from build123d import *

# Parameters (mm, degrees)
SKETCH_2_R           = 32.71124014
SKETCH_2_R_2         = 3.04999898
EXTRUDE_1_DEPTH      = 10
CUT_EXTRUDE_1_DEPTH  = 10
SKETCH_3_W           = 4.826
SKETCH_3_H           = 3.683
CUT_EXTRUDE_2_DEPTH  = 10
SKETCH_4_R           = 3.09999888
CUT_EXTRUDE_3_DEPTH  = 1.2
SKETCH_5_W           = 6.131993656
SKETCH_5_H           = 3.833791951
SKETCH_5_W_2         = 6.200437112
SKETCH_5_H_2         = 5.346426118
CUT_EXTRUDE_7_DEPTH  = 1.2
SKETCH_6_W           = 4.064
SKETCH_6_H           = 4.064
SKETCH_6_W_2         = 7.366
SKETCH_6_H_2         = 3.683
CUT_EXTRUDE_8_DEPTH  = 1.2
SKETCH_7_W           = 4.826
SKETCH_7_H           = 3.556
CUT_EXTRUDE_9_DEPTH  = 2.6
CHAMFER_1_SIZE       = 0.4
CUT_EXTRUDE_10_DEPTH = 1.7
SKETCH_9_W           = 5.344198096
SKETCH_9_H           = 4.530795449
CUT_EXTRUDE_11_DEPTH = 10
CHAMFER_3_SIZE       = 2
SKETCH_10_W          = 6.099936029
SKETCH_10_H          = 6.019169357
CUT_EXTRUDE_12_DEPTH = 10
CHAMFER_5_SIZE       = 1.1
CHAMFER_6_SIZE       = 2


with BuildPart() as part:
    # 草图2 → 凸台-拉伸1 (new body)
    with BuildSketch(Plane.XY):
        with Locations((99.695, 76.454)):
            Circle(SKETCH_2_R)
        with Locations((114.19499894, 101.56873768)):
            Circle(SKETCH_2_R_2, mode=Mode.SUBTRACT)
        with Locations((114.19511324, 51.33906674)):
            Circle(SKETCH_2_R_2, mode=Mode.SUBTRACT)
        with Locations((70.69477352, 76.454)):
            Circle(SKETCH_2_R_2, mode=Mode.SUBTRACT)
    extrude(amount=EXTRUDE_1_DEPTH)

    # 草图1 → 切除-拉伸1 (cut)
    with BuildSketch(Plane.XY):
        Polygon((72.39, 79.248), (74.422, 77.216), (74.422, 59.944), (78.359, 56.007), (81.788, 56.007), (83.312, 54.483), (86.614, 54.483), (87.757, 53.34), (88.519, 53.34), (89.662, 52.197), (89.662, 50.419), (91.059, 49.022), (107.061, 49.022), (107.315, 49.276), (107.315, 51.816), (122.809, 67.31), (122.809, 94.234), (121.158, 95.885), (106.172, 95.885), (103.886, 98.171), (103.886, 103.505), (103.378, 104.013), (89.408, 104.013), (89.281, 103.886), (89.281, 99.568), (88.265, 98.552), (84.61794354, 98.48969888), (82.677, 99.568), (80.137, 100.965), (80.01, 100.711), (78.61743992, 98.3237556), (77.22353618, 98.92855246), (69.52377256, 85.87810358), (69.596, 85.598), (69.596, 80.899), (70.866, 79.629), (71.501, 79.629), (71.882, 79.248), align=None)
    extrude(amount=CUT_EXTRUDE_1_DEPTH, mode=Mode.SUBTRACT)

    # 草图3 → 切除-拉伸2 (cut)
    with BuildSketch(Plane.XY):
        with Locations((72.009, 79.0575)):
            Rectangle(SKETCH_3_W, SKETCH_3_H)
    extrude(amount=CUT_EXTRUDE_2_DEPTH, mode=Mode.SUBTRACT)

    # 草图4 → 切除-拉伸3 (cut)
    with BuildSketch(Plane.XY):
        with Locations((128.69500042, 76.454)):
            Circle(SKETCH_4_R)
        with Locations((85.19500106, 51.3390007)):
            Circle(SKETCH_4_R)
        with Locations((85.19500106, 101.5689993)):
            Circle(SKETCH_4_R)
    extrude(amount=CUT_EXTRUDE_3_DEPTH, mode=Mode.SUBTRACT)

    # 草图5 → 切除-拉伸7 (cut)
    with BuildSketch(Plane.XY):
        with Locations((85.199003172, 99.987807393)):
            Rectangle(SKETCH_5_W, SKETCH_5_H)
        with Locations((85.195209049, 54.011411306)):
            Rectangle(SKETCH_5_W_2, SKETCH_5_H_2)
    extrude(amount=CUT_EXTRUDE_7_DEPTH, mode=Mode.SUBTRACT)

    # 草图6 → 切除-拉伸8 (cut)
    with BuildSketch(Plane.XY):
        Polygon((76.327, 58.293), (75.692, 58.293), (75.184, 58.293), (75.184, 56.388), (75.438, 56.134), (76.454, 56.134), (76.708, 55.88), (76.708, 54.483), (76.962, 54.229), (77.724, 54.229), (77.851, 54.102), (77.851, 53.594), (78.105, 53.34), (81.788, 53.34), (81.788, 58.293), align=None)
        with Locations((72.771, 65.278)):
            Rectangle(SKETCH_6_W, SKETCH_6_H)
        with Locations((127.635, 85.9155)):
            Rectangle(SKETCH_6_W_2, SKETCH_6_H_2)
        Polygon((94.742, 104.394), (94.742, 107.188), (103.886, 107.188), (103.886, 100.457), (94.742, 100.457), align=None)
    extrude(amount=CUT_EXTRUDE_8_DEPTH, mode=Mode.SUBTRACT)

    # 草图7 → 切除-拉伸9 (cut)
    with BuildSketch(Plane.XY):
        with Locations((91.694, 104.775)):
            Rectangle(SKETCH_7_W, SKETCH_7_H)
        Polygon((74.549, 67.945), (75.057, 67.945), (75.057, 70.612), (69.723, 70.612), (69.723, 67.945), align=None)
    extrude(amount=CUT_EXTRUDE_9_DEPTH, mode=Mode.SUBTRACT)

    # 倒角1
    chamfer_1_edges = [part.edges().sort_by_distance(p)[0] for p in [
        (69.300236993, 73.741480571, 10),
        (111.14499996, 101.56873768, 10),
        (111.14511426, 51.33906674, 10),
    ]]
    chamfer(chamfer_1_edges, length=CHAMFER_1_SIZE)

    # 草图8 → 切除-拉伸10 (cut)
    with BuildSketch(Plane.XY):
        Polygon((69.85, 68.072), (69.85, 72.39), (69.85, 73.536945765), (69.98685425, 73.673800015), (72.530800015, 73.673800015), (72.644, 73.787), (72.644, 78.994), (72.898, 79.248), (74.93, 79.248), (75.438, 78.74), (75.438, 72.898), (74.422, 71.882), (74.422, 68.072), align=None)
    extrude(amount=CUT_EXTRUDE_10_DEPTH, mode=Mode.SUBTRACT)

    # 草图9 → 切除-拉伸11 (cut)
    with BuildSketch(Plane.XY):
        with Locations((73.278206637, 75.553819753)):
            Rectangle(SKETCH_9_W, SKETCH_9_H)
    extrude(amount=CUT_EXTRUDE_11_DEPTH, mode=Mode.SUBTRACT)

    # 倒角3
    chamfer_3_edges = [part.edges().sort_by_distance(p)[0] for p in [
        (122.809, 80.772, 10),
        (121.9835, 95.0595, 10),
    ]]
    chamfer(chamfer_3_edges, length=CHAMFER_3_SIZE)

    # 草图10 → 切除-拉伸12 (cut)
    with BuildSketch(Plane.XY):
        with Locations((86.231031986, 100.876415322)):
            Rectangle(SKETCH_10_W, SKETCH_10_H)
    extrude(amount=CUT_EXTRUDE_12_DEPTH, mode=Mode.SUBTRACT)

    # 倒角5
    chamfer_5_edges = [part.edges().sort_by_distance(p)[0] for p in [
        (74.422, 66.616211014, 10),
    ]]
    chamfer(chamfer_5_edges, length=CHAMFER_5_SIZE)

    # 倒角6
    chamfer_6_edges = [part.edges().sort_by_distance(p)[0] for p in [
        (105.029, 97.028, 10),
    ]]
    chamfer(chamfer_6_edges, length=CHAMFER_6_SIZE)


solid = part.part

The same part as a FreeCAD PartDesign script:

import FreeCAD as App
import Part
import Sketcher
from FreeCAD import Vector
Q = App.Units.Quantity


def edges_at(feature, points):
    """Names of the edges that pass closest to the given points."""
    edges = feature.Shape.Edges
    near = lambda p: min(range(len(edges)), key=lambda i: edges[i].distToShape(Part.Vertex(*p))[0])
    return sorted({f"Edge{near(p) + 1}" for p in points})

doc = App.newDocument("Part")
body = doc.addObject("PartDesign::Body", "Body")

# Sketch on XY plane
sketch1 = doc.addObject("Sketcher::SketchObject", "Sketch")
body.addObject(sketch1)
sketch1.AttachmentSupport = (doc.XY_Plane, [""])
sketch1.MapMode = "FlatFace"
sketch1.addGeometry([
    Part.Circle(Vector(99.7, 76.5, 0), Vector(0, 0, 1), 32.7),
    Part.Circle(Vector(114.2, 51.3, 0), Vector(0, 0, 1), 3),
    Part.Circle(Vector(70.7, 76.5, 0), Vector(0, 0, 1), 3),
    Part.Circle(Vector(114.2, 101.6, 0), Vector(0, 0, 1), 3),
], False)
sketch1.addConstraint([
    Sketcher.Constraint("Equal", 1, 2),
    Sketcher.Constraint("Equal", 2, 3),
    Sketcher.Constraint("Horizontal", 0, 3, 2, 3),
    Sketcher.Constraint("DistanceY", -1, 1, 0, 3, Q("3.01 in")),
    Sketcher.Constraint("Diameter", 0, 65.42248),
    Sketcher.Constraint("DistanceX", -1, 1, 0, 3, Q("3.925 in")),
    Sketcher.Constraint("Diameter", 1, 6.099998),
    Sketcher.Constraint("DistanceX", -1, 1, 3, 3, 114.194999),
    Sketcher.Constraint("DistanceX", 2, 3, 1, 3, 43.50034),
    Sketcher.Constraint("DistanceY", 1, 3, 3, 3, 50.229671),
    Sketcher.Constraint("DistanceX", -1, 1, 1, 3, 114.195113),
    Sketcher.Constraint("DistanceY", -1, 1, 1, 3, 51.339067),
])
pad1 = doc.addObject("PartDesign::Pad", "Pad")
body.addObject(pad1)
pad1.Profile = sketch1
pad1.Length = 10

# Sketch on XY plane
sketch2 = doc.addObject("Sketcher::SketchObject", "Sketch001")
body.addObject(sketch2)
sketch2.AttachmentSupport = (doc.XY_Plane, [""])
sketch2.MapMode = "FlatFace"
sketch2.addGeometry([
    Part.LineSegment(Vector(72.39, 79.25, 0), Vector(74.42, 77.22, 0)),  # 0
    Part.LineSegment(Vector(74.42, 77.22, 0), Vector(74.42, 59.94, 0)),  # 1
    Part.LineSegment(Vector(74.42, 59.94, 0), Vector(78.36, 56.01, 0)),  # 2
    Part.LineSegment(Vector(78.36, 56.01, 0), Vector(81.79, 56.01, 0)),  # 3
    Part.LineSegment(Vector(81.79, 56.01, 0), Vector(83.31, 54.48, 0)),  # 4
    Part.LineSegment(Vector(83.31, 54.48, 0), Vector(86.61, 54.48, 0)),  # 5
    Part.LineSegment(Vector(86.61, 54.48, 0), Vector(87.76, 53.34, 0)),  # 6
    Part.LineSegment(Vector(87.76, 53.34, 0), Vector(88.52, 53.34, 0)),  # 7
    Part.LineSegment(Vector(88.52, 53.34, 0), Vector(89.66, 52.2, 0)),  # 8
    Part.LineSegment(Vector(89.66, 52.2, 0), Vector(89.66, 50.42, 0)),  # 9
    Part.LineSegment(Vector(89.66, 50.42, 0), Vector(91.06, 49.02, 0)),  # 10
    Part.LineSegment(Vector(91.06, 49.02, 0), Vector(107.06, 49.02, 0)),  # 11
    Part.LineSegment(Vector(107.06, 49.02, 0), Vector(107.31, 49.28, 0)),  # 12
    Part.LineSegment(Vector(107.31, 49.28, 0), Vector(107.31, 51.82, 0)),  # 13
    Part.LineSegment(Vector(107.31, 51.82, 0), Vector(122.81, 67.31, 0)),  # 14
    Part.LineSegment(Vector(122.81, 67.31, 0), Vector(122.81, 94.23, 0)),  # 15
    Part.LineSegment(Vector(122.81, 94.23, 0), Vector(121.16, 95.89, 0)),  # 16
    Part.LineSegment(Vector(121.16, 95.89, 0), Vector(106.17, 95.89, 0)),  # 17
    Part.LineSegment(Vector(106.17, 95.89, 0), Vector(103.89, 98.17, 0)),  # 18
    Part.LineSegment(Vector(103.89, 98.17, 0), Vector(103.89, 103.5, 0)),  # 19
    Part.LineSegment(Vector(103.89, 103.5, 0), Vector(103.38, 104.01, 0)),  # 20
    Part.LineSegment(Vector(103.38, 104.01, 0), Vector(89.41, 104.01, 0)),  # 21
    Part.LineSegment(Vector(89.41, 104.01, 0), Vector(89.28, 103.89, 0)),  # 22
    Part.LineSegment(Vector(89.28, 103.89, 0), Vector(89.28, 99.57, 0)),  # 23
    Part.LineSegment(Vector(89.28, 99.57, 0), Vector(88.27, 98.55, 0)),  # 24
    Part.LineSegment(Vector(88.27, 98.55, 0), Vector(84.62, 98.49, 0)),  # 25
    Part.LineSegment(Vector(84.62, 98.49, 0), Vector(82.68, 99.57, 0)),  # 26
    Part.LineSegment(Vector(82.68, 99.57, 0), Vector(80.14, 100.97, 0)),  # 27
    Part.LineSegment(Vector(80.14, 100.97, 0), Vector(80.01, 100.71, 0)),  # 28
    Part.LineSegment(Vector(80.01, 100.71, 0), Vector(78.62, 98.32, 0)),  # 29
    Part.LineSegment(Vector(78.62, 98.32, 0), Vector(77.22, 98.93, 0)),  # 30
    Part.LineSegment(Vector(77.22, 98.93, 0), Vector(69.52, 85.88, 0)),  # 31
    Part.LineSegment(Vector(69.52, 85.88, 0), Vector(69.6, 85.6, 0)),  # 32
    Part.LineSegment(Vector(69.6, 85.6, 0), Vector(69.6, 80.9, 0)),  # 33
    Part.LineSegment(Vector(69.6, 80.9, 0), Vector(70.87, 79.63, 0)),  # 34
    Part.LineSegment(Vector(70.87, 79.63, 0), Vector(71.5, 79.63, 0)),  # 35
    Part.LineSegment(Vector(71.5, 79.63, 0), Vector(71.88, 79.25, 0)),  # 36
    Part.LineSegment(Vector(71.88, 79.25, 0), Vector(72.39, 79.25, 0)),  # 37
], False)
sketch2.addConstraint([
    Sketcher.Constraint("Coincident", 0, 2, 1, 1),
    Sketcher.Constraint("Coincident", 1, 2, 2, 1),
    Sketcher.Constraint("Coincident", 2, 2, 3, 1),
    Sketcher.Constraint("Coincident", 3, 2, 4, 1),
    Sketcher.Constraint("Coincident", 4, 2, 5, 1),
    Sketcher.Constraint("Coincident", 5, 2, 6, 1),
    Sketcher.Constraint("Coincident", 6, 2, 7, 1),
    Sketcher.Constraint("Coincident", 7, 2, 8, 1),
    Sketcher.Constraint("Coincident", 8, 2, 9, 1),
    Sketcher.Constraint("Coincident", 9, 2, 10, 1),
    Sketcher.Constraint("Coincident", 10, 2, 11, 1),
    Sketcher.Constraint("Coincident", 11, 2, 12, 1),
    Sketcher.Constraint("Coincident", 12, 2, 13, 1),
    Sketcher.Constraint("Coincident", 13, 2, 14, 1),
    Sketcher.Constraint("Coincident", 14, 2, 15, 1),
    Sketcher.Constraint("Coincident", 15, 2, 16, 1),
    Sketcher.Constraint("Coincident", 16, 2, 17, 1),
    Sketcher.Constraint("Coincident", 17, 2, 18, 1),
    Sketcher.Constraint("Coincident", 18, 2, 19, 1),
    Sketcher.Constraint("Coincident", 19, 2, 20, 1),
    Sketcher.Constraint("Coincident", 20, 2, 21, 1),
    Sketcher.Constraint("Coincident", 21, 2, 22, 1),
    Sketcher.Constraint("Coincident", 22, 2, 23, 1),
    Sketcher.Constraint("Coincident", 23, 2, 24, 1),
    Sketcher.Constraint("Coincident", 24, 2, 25, 1),
    Sketcher.Constraint("Coincident", 25, 2, 26, 1),
    Sketcher.Constraint("Coincident", 26, 2, 27, 1),
    Sketcher.Constraint("Coincident", 27, 2, 28, 1),
    Sketcher.Constraint("Coincident", 28, 2, 29, 1),
    Sketcher.Constraint("Coincident", 29, 2, 30, 1),
    Sketcher.Constraint("Coincident", 30, 2, 31, 1),
    Sketcher.Constraint("Coincident", 31, 2, 32, 1),
    Sketcher.Constraint("Coincident", 32, 2, 33, 1),
    Sketcher.Constraint("Coincident", 33, 2, 34, 1),
    Sketcher.Constraint("Coincident", 34, 2, 35, 1),
    Sketcher.Constraint("Coincident", 35, 2, 36, 1),
    Sketcher.Constraint("Coincident", 36, 2, 37, 1),
    Sketcher.Constraint("Coincident", 37, 2, 0, 1),
    Sketcher.Constraint("Vertical", 1),
    Sketcher.Constraint("Horizontal", 3),
    Sketcher.Constraint("Horizontal", 5),
    Sketcher.Constraint("Horizontal", 7),
    Sketcher.Constraint("Vertical", 9),
    Sketcher.Constraint("Horizontal", 11),
    Sketcher.Constraint("Vertical", 13),
    Sketcher.Constraint("Vertical", 15),
    Sketcher.Constraint("Horizontal", 17),
    Sketcher.Constraint("Vertical", 19),
    Sketcher.Constraint("Horizontal", 21),
    Sketcher.Constraint("Vertical", 23),
    Sketcher.Constraint("Vertical", 33),
    Sketcher.Constraint("Horizontal", 35),
    Sketcher.Constraint("Horizontal", 37),
    Sketcher.Constraint("Parallel", 0, 2),
    Sketcher.Constraint("Parallel", 2, 4),
    Sketcher.Constraint("Parallel", 4, 6),
    Sketcher.Constraint("Parallel", 6, 8),
    Sketcher.Constraint("Parallel", 8, 10),
    Sketcher.Constraint("Perpendicular", 10, 12),
    Sketcher.Constraint("Parallel", 12, 14),
    Sketcher.Constraint("Perpendicular", 14, 16),
    Sketcher.Constraint("Parallel", 16, 18),
    Sketcher.Constraint("Parallel", 18, 20),
    Sketcher.Constraint("Perpendicular", 20, 22),
    Sketcher.Constraint("Parallel", 22, 24),
    Sketcher.Constraint("Perpendicular", 24, 34),
    Sketcher.Constraint("Parallel", 34, 36),
    Sketcher.Constraint("Horizontal", 23, 2, 26, 2),
    Sketcher.Constraint("Equal", 6, 8),
    Sketcher.Constraint("DistanceY", 13, 1, 13, 2, Q("0.1 in")),
    Sketcher.Constraint("Angle", 0, Q("-45 deg")),
    Sketcher.Constraint("DistanceX", 5, 1, 5, 2, Q("0.13 in")),
    Sketcher.Constraint("DistanceX", 7, 1, 7, 2, Q("0.03 in")),
    Sketcher.Constraint("DistanceX", 11, 1, 11, 2, Q("0.63 in")),
    Sketcher.Constraint("DistanceX", 17, 2, 17, 1, Q("0.59 in")),
    Sketcher.Constraint("DistanceX", 21, 2, 21, 1, Q("0.55 in")),
    Sketcher.Constraint("DistanceX", 37, 1, 37, 2, Q("0.02 in")),
    Sketcher.Constraint("DistanceY", 1, 2, 1, 1, Q("0.68 in")),
    Sketcher.Constraint("DistanceY", 9, 2, 9, 1, Q("0.07 in")),
    Sketcher.Constraint("DistanceY", 15, 1, 15, 2, Q("1.06 in")),
    Sketcher.Constraint("DistanceY", 19, 1, 19, 2, Q("0.21 in")),
    Sketcher.Constraint("DistanceY", 23, 2, 23, 1, Q("0.17 in")),
    Sketcher.Constraint("DistanceY", -1, 1, 6, 2, Q("2.1 in")),
    Sketcher.Constraint("DistanceX", 2, 2, 7, 2, Q("0.4 in")),
    Sketcher.Constraint("DistanceX", 7, 2, 10, 2, Q("0.1 in")),
    Sketcher.Constraint("DistanceY", 17, 2, 19, 2, Q("0.3 in")),
    Sketcher.Constraint("DistanceX", 20, 2, 16, 2, Q("0.7 in")),
    Sketcher.Constraint("DistanceX", 27, 2, 26, 2, Q("0.1 in")),
    Sketcher.Constraint("DistanceX", 36, 2, 0, 2, Q("0.1 in")),
    Sketcher.Constraint("DistanceX", 3, 1, 3, 2, Q("0.135 in")),
    Sketcher.Constraint("DistanceX", 35, 1, 35, 2, Q("0.025 in")),
    Sketcher.Constraint("DistanceY", 33, 2, 33, 1, Q("0.185 in")),
    Sketcher.Constraint("DistanceX", -1, 1, 0, 2, Q("2.93 in")),
    Sketcher.Constraint("DistanceY", -1, 1, 0, 2, Q("3.04 in")),
    Sketcher.Constraint("DistanceX", -1, 1, 4, 2, Q("3.28 in")),
    Sketcher.Constraint("DistanceY", -1, 1, 12, 2, Q("1.94 in")),
    Sketcher.Constraint("DistanceY", -1, 1, 14, 2, Q("2.65 in")),
    Sketcher.Constraint("DistanceX", -1, 1, 16, 2, Q("4.77 in")),
    Sketcher.Constraint("DistanceY", -1, 1, 22, 2, Q("4.09 in")),
    Sketcher.Constraint("DistanceY", -1, 1, 24, 2, Q("3.88 in")),
    Sketcher.Constraint("DistanceX", -1, 1, 28, 2, Q("3.15 in")),
    Sketcher.Constraint("DistanceX", -1, 1, 32, 2, Q("2.74 in")),
    Sketcher.Constraint("DistanceX", -1, 1, 34, 2, Q("2.79 in")),
    Sketcher.Constraint("DistanceX", 26, 2, 24, 2, Q("0.22 in")),
    Sketcher.Constraint("DistanceY", 28, 2, 27, 2, Q("0.01 in")),
    Sketcher.Constraint("DistanceY", -1, 1, 27, 2, Q("3.975 in")),
    Sketcher.Constraint("DistanceY", -1, 1, 25, 2, 98.489699),
    Sketcher.Constraint("Distance", 25, 3.647589),
    Sketcher.Constraint("DistanceX", -1, 1, 29, 2, 78.61744),
    Sketcher.Constraint("DistanceY", 31, 2, 30, 2, 13.050449),
    Sketcher.Constraint("Distance", 29, 2.763722),
    Sketcher.Constraint("Distance", 30, 1.519456),
    Sketcher.Constraint("Distance", 31, 15.152577),
    Sketcher.Constraint("Distance", 32, 0.289266),
])
pocket1 = doc.addObject("PartDesign::Pocket", "Pocket")
body.addObject(pocket1)
pocket1.Profile = sketch2
pocket1.Length = 10
pocket1.Reversed = True

# Sketch on XY plane
sketch3 = doc.addObject("Sketcher::SketchObject", "Sketch002")
body.addObject(sketch3)
sketch3.AttachmentSupport = (doc.XY_Plane, [""])
sketch3.MapMode = "FlatFace"
sketch3.addGeometry([
    Part.LineSegment(Vector(69.6, 80.9, 0), Vector(69.6, 77.2, 0)),
    Part.LineSegment(Vector(69.6, 77.2, 0), Vector(74.4, 77.2, 0)),
    Part.LineSegment(Vector(74.4, 77.2, 0), Vector(74.4, 80.9, 0)),
    Part.LineSegment(Vector(74.4, 80.9, 0), Vector(69.6, 80.9, 0)),
], False)
sketch3.addConstraint([
    Sketcher.Constraint("Coincident", 0, 2, 1, 1),
    Sketcher.Constraint("Coincident", 1, 2, 2, 1),
    Sketcher.Constraint("Coincident", 2, 2, 3, 1),
    Sketcher.Constraint("Coincident", 3, 2, 0, 1),
    Sketcher.Constraint("Vertical", 0),
    Sketcher.Constraint("Horizontal", 1),
    Sketcher.Constraint("Vertical", 2),
    Sketcher.Constraint("Horizontal", 3),
    Sketcher.Constraint("DistanceX", 1, 1, 1, 2, Q("0.19 in")),
    Sketcher.Constraint("DistanceY", 0, 2, 0, 1, Q("0.145 in")),
    Sketcher.Constraint("DistanceX", -1, 1, 0, 2, Q("2.74 in")),
    Sketcher.Constraint("DistanceY", -1, 1, 0, 2, Q("3.04 in")),
])
pocket2 = doc.addObject("PartDesign::Pocket", "Pocket001")
body.addObject(pocket2)
pocket2.Profile = sketch3
pocket2.Length = 10
pocket2.Reversed = True

# Sketch on XY plane
sketch4 = doc.addObject("Sketcher::SketchObject", "Sketch003")
body.addObject(sketch4)
sketch4.AttachmentSupport = (doc.XY_Plane, [""])
sketch4.MapMode = "FlatFace"
sketch4.addGeometry([
    Part.Circle(Vector(128.7, 76.5, 0), Vector(0, 0, 1), 3.1),
    Part.Circle(Vector(85.2, 51.3, 0), Vector(0, 0, 1), 3.1),
    Part.Circle(Vector(85.2, 101.6, 0), Vector(0, 0, 1), 3.1),
], False)
sketch4.addConstraint([
    Sketcher.Constraint("Equal", 0, 1),
    Sketcher.Constraint("Equal", 1, 2),
    Sketcher.Constraint("Vertical", 1, 3, 2, 3),
    Sketcher.Constraint("DistanceY", -1, 1, 0, 3, Q("3.01 in")),
    Sketcher.Constraint("Diameter", 0, 6.199998),
    Sketcher.Constraint("DistanceX", -1, 1, 0, 3, 128.695),
    Sketcher.Constraint("DistanceX", -1, 1, 1, 3, 85.195001),
    Sketcher.Constraint("DistanceY", -1, 1, 1, 3, 51.339001),
    Sketcher.Constraint("DistanceY", -1, 1, 2, 3, 101.568999),
])
pocket3 = doc.addObject("PartDesign::Pocket", "Pocket002")
body.addObject(pocket3)
pocket3.Profile = sketch4
pocket3.Length = 1.2
pocket3.Reversed = True

# Sketch on XY plane
sketch5 = doc.addObject("Sketcher::SketchObject", "Sketch004")
body.addObject(sketch5)
sketch5.AttachmentSupport = (doc.XY_Plane, [""])
sketch5.MapMode = "FlatFace"
sketch5.addGeometry([
    Part.LineSegment(Vector(82.1, 101.9, 0), Vector(82.1, 98.1, 0)),  # 0
    Part.LineSegment(Vector(82.1, 98.1, 0), Vector(88.3, 98.1, 0)),  # 1
    Part.LineSegment(Vector(88.3, 98.1, 0), Vector(88.3, 101.9, 0)),  # 2
    Part.LineSegment(Vector(88.3, 101.9, 0), Vector(82.1, 101.9, 0)),  # 3
    Part.LineSegment(Vector(82.1, 56.7, 0), Vector(82.1, 51.3, 0)),  # 4
    Part.LineSegment(Vector(82.1, 51.3, 0), Vector(88.3, 51.3, 0)),  # 5
    Part.LineSegment(Vector(88.3, 51.3, 0), Vector(88.3, 56.7, 0)),  # 6
    Part.LineSegment(Vector(88.3, 56.7, 0), Vector(82.1, 56.7, 0)),  # 7
], False)
sketch5.addConstraint([
    Sketcher.Constraint("Coincident", 0, 2, 1, 1),
    Sketcher.Constraint("Coincident", 1, 2, 2, 1),
    Sketcher.Constraint("Coincident", 2, 2, 3, 1),
    Sketcher.Constraint("Coincident", 3, 2, 0, 1),
    Sketcher.Constraint("Coincident", 4, 2, 5, 1),
    Sketcher.Constraint("Coincident", 5, 2, 6, 1),
    Sketcher.Constraint("Coincident", 6, 2, 7, 1),
    Sketcher.Constraint("Coincident", 7, 2, 4, 1),
    Sketcher.Constraint("Vertical", 0),
    Sketcher.Constraint("Horizontal", 1),
    Sketcher.Constraint("Vertical", 2),
    Sketcher.Constraint("Horizontal", 3),
    Sketcher.Constraint("Vertical", 4),
    Sketcher.Constraint("Horizontal", 5),
    Sketcher.Constraint("Vertical", 6),
    Sketcher.Constraint("Horizontal", 7),
    Sketcher.Constraint("DistanceX", -1, 1, 1, 2, Q("3.475 in")),
    Sketcher.Constraint("DistanceY", 0, 2, 0, 1, 3.833792),
    Sketcher.Constraint("DistanceY", -1, 1, 4, 2, 51.338198),
    Sketcher.Constraint("DistanceX", 1, 1, 1, 2, 6.131994),
    Sketcher.Constraint("DistanceX", 5, 1, 5, 2, 6.200437),
    Sketcher.Constraint("DistanceY", 4, 2, 4, 1, 5.346426),
    Sketcher.Constraint("DistanceY", -1, 1, 0, 2, 98.070911),
    Sketcher.Constraint("DistanceX", -1, 1, 4, 2, 82.09499),
])
pocket4 = doc.addObject("PartDesign::Pocket", "Pocket003")
body.addObject(pocket4)
pocket4.Profile = sketch5
pocket4.Length = 1.2
pocket4.Reversed = True

# Sketch on XY plane
sketch6 = doc.addObject("Sketcher::SketchObject", "Sketch005")
body.addObject(sketch6)
sketch6.AttachmentSupport = (doc.XY_Plane, [""])
sketch6.MapMode = "FlatFace"
sketch6.addGeometry([
    Part.LineSegment(Vector(75.18, 58.29, 0), Vector(75.18, 56.39, 0)),  # 0
    Part.LineSegment(Vector(75.18, 56.39, 0), Vector(75.44, 56.13, 0)),  # 1
    Part.LineSegment(Vector(75.44, 56.13, 0), Vector(76.45, 56.13, 0)),  # 2
    Part.LineSegment(Vector(76.45, 56.13, 0), Vector(76.71, 55.88, 0)),  # 3
    Part.LineSegment(Vector(76.71, 55.88, 0), Vector(76.71, 54.48, 0)),  # 4
    Part.LineSegment(Vector(76.71, 54.48, 0), Vector(76.96, 54.23, 0)),  # 5
    Part.LineSegment(Vector(76.96, 54.23, 0), Vector(77.72, 54.23, 0)),  # 6
    Part.LineSegment(Vector(77.72, 54.23, 0), Vector(77.85, 54.1, 0)),  # 7
    Part.LineSegment(Vector(77.85, 54.1, 0), Vector(77.85, 53.59, 0)),  # 8
    Part.LineSegment(Vector(77.85, 53.59, 0), Vector(78.11, 53.34, 0)),  # 9
    Part.LineSegment(Vector(78.11, 53.34, 0), Vector(81.79, 53.34, 0)),  # 10
    Part.LineSegment(Vector(81.79, 53.34, 0), Vector(81.79, 58.29, 0)),  # 11
    Part.LineSegment(Vector(81.79, 58.29, 0), Vector(75.18, 58.29, 0)),  # 12
    Part.LineSegment(Vector(70.74, 67.31, 0), Vector(70.74, 63.25, 0)),  # 13
    Part.LineSegment(Vector(70.74, 63.25, 0), Vector(74.8, 63.25, 0)),  # 14
    Part.LineSegment(Vector(74.8, 63.25, 0), Vector(74.8, 67.31, 0)),  # 15
    Part.LineSegment(Vector(74.8, 67.31, 0), Vector(70.74, 67.31, 0)),  # 16
    Part.LineSegment(Vector(123.95, 87.76, 0), Vector(123.95, 84.07, 0)),  # 17
    Part.LineSegment(Vector(123.95, 84.07, 0), Vector(131.32, 84.07, 0)),  # 18
    Part.LineSegment(Vector(131.32, 84.07, 0), Vector(131.32, 87.76, 0)),  # 19
    Part.LineSegment(Vector(131.32, 87.76, 0), Vector(123.95, 87.76, 0)),  # 20
    Part.LineSegment(Vector(94.74, 107.19, 0), Vector(94.74, 100.46, 0)),  # 21
    Part.LineSegment(Vector(94.74, 100.46, 0), Vector(103.89, 100.46, 0)),  # 22
    Part.LineSegment(Vector(103.89, 100.46, 0), Vector(103.89, 107.19, 0)),  # 23
    Part.LineSegment(Vector(103.89, 107.19, 0), Vector(94.74, 107.19, 0)),  # 24
], False)
sketch6.addConstraint([
    Sketcher.Constraint("Coincident", 0, 2, 1, 1),
    Sketcher.Constraint("Coincident", 1, 2, 2, 1),
    Sketcher.Constraint("Coincident", 2, 2, 3, 1),
    Sketcher.Constraint("Coincident", 3, 2, 4, 1),
    Sketcher.Constraint("Coincident", 4, 2, 5, 1),
    Sketcher.Constraint("Coincident", 5, 2, 6, 1),
    Sketcher.Constraint("Coincident", 6, 2, 7, 1),
    Sketcher.Constraint("Coincident", 7, 2, 8, 1),
    Sketcher.Constraint("Coincident", 8, 2, 9, 1),
    Sketcher.Constraint("Coincident", 9, 2, 10, 1),
    Sketcher.Constraint("Coincident", 10, 2, 11, 1),
    Sketcher.Constraint("Coincident", 11, 2, 12, 1),
    Sketcher.Constraint("Coincident", 12, 2, 0, 1),
    Sketcher.Constraint("Coincident", 13, 2, 14, 1),
    Sketcher.Constraint("Coincident", 14, 2, 15, 1),
    Sketcher.Constraint("Coincident", 15, 2, 16, 1),
    Sketcher.Constraint("Coincident", 16, 2, 13, 1),
    Sketcher.Constraint("Coincident", 17, 2, 18, 1),
    Sketcher.Constraint("Coincident", 18, 2, 19, 1),
    Sketcher.Constraint("Coincident", 19, 2, 20, 1),
    Sketcher.Constraint("Coincident", 20, 2, 17, 1),
    Sketcher.Constraint("Coincident", 21, 2, 22, 1),
    Sketcher.Constraint("Coincident", 22, 2, 23, 1),
    Sketcher.Constraint("Coincident", 23, 2, 24, 1),
    Sketcher.Constraint("Coincident", 24, 2, 21, 1),
    Sketcher.Constraint("Vertical", 0),
    Sketcher.Constraint("Horizontal", 2),
    Sketcher.Constraint("Vertical", 4),
    Sketcher.Constraint("Horizontal", 6),
    Sketcher.Constraint("Vertical", 8),
    Sketcher.Constraint("Horizontal", 10),
    Sketcher.Constraint("Vertical", 11),
    Sketcher.Constraint("Horizontal", 12),
    Sketcher.Constraint("Vertical", 13),
    Sketcher.Constraint("Horizontal", 14),
    Sketcher.Constraint("Vertical", 15),
    Sketcher.Constraint("Horizontal", 16),
    Sketcher.Constraint("Vertical", 17),
    Sketcher.Constraint("Horizontal", 18),
    Sketcher.Constraint("Vertical", 19),
    Sketcher.Constraint("Horizontal", 20),
    Sketcher.Constraint("Vertical", 21),
    Sketcher.Constraint("Horizontal", 22),
    Sketcher.Constraint("Vertical", 23),
    Sketcher.Constraint("Horizontal", 24),
    Sketcher.Constraint("Parallel", 1, 3),
    Sketcher.Constraint("Parallel", 3, 5),
    Sketcher.Constraint("Parallel", 5, 7),
    Sketcher.Constraint("Parallel", 7, 9),
    Sketcher.Constraint("Equal", 16, 13),
    Sketcher.Constraint("Equal", 10, 17),
    Sketcher.Constraint("Equal", 1, 3),
    Sketcher.Constraint("Equal", 3, 5),
    Sketcher.Constraint("Equal", 5, 9),
    Sketcher.Constraint("Angle", 1, Q("-45 deg")),
    Sketcher.Constraint("DistanceX", 2, 1, 2, 2, Q("0.04 in")),
    Sketcher.Constraint("DistanceX", 6, 1, 6, 2, Q("0.03 in")),
    Sketcher.Constraint("DistanceX", 12, 2, 12, 1, Q("0.26 in")),
    Sketcher.Constraint("DistanceX", 14, 1, 14, 2, Q("0.16 in")),
    Sketcher.Constraint("DistanceX", 18, 1, 18, 2, Q("0.29 in")),
    Sketcher.Constraint("DistanceX", 22, 1, 22, 2, Q("0.36 in")),
    Sketcher.Constraint("DistanceY", 8, 2, 8, 1, Q("0.02 in")),
    Sketcher.Constraint("DistanceY", -1, 1, 3, 2, Q("2.2 in")),
    Sketcher.Constraint("DistanceY", -1, 1, 9, 2, Q("2.1 in")),
    Sketcher.Constraint("DistanceX", 3, 2, 11, 2, Q("0.2 in")),
    Sketcher.Constraint("DistanceY", 20, 2, 21, 2, Q("0.5 in")),
    Sketcher.Constraint("DistanceX", 10, 1, 10, 2, Q("0.145 in")),
    Sketcher.Constraint("DistanceY", 0, 2, 0, 1, Q("0.075 in")),
    Sketcher.Constraint("DistanceY", 21, 2, 21, 1, Q("0.265 in")),
    Sketcher.Constraint("DistanceX", -1, 1, 0, 2, Q("2.96 in")),
    Sketcher.Constraint("DistanceY", -1, 1, 13, 2, Q("2.49 in")),
    Sketcher.Constraint("DistanceX", -1, 1, 17, 2, Q("4.88 in")),
    Sketcher.Constraint("DistanceY", -1, 1, 17, 2, Q("3.31 in")),
    Sketcher.Constraint("DistanceX", -1, 1, 21, 2, Q("3.73 in")),
    Sketcher.Constraint("DistanceX", -1, 1, 13, 2, Q("2.785 in")),
])
pocket5 = doc.addObject("PartDesign::Pocket", "Pocket004")
body.addObject(pocket5)
pocket5.Profile = sketch6
pocket5.Length = 1.2
pocket5.Reversed = True

# Sketch on XY plane
sketch7 = doc.addObject("Sketcher::SketchObject", "Sketch006")
body.addObject(sketch7)
sketch7.AttachmentSupport = (doc.XY_Plane, [""])
sketch7.MapMode = "FlatFace"
sketch7.addGeometry([
    Part.LineSegment(Vector(89.3, 106.6, 0), Vector(89.3, 103, 0)),  # 0
    Part.LineSegment(Vector(89.3, 103, 0), Vector(94.1, 103, 0)),  # 1
    Part.LineSegment(Vector(94.1, 103, 0), Vector(94.1, 106.6, 0)),  # 2
    Part.LineSegment(Vector(94.1, 106.6, 0), Vector(89.3, 106.6, 0)),  # 3
    Part.LineSegment(Vector(75.1, 67.9, 0), Vector(75.1, 70.6, 0)),  # 4
    Part.LineSegment(Vector(75.1, 70.6, 0), Vector(69.7, 70.6, 0)),  # 5
    Part.LineSegment(Vector(69.7, 70.6, 0), Vector(69.7, 67.9, 0)),  # 6
    Part.LineSegment(Vector(69.7, 67.9, 0), Vector(75.1, 67.9, 0)),  # 7
], False)
sketch7.addConstraint([
    Sketcher.Constraint("Coincident", 0, 2, 1, 1),
    Sketcher.Constraint("Coincident", 1, 2, 2, 1),
    Sketcher.Constraint("Coincident", 2, 2, 3, 1),
    Sketcher.Constraint("Coincident", 3, 2, 0, 1),
    Sketcher.Constraint("Coincident", 4, 2, 5, 1),
    Sketcher.Constraint("Coincident", 5, 2, 6, 1),
    Sketcher.Constraint("Coincident", 6, 2, 7, 1),
    Sketcher.Constraint("Coincident", 7, 2, 4, 1),
    Sketcher.Constraint("Vertical", 0),
    Sketcher.Constraint("Horizontal", 1),
    Sketcher.Constraint("Vertical", 2),
    Sketcher.Constraint("Horizontal", 3),
    Sketcher.Constraint("Vertical", 4),
    Sketcher.Constraint("Horizontal", 5),
    Sketcher.Constraint("Vertical", 6),
    Sketcher.Constraint("Horizontal", 7),
    Sketcher.Constraint("DistanceX", 1, 1, 1, 2, Q("0.19 in")),
    Sketcher.Constraint("DistanceX", 5, 2, 5, 1, Q("0.21 in")),
    Sketcher.Constraint("DistanceY", 0, 2, 0, 1, Q("0.14 in")),
    Sketcher.Constraint("DistanceY", 4, 1, 4, 2, Q("0.105 in")),
    Sketcher.Constraint("DistanceY", -1, 1, 4, 2, Q("2.78 in")),
    Sketcher.Constraint("DistanceX", 4, 2, 0, 2, Q("0.56 in")),
    Sketcher.Constraint("DistanceY", 6, 2, 0, 2, Q("1.38 in")),
    Sketcher.Constraint("DistanceX", -1, 1, 0, 2, Q("3.515 in")),
])
pocket6 = doc.addObject("PartDesign::Pocket", "Pocket005")
body.addObject(pocket6)
pocket6.Profile = sketch7
pocket6.Length = 2.6
pocket6.Reversed = True
doc.recompute()

chamfer = doc.addObject("PartDesign::Chamfer", "Chamfer")
body.addObject(chamfer)
chamfer.Base = (pocket6, edges_at(pocket6, [(69.3, 73.741, 10), (111.145, 101.569, 10), (111.145, 51.339, 10)]))
chamfer.Size = 0.4

# Sketch on XY plane
sketch8 = doc.addObject("Sketcher::SketchObject", "Sketch007")
body.addObject(sketch8)
sketch8.AttachmentSupport = (doc.XY_Plane, [""])
sketch8.MapMode = "FlatFace"
sketch8.addGeometry([
    Part.LineSegment(Vector(69.85, 73.54, 0), Vector(69.85, 68.07, 0)),  # 0
    Part.LineSegment(Vector(69.85, 68.07, 0), Vector(74.42, 68.07, 0)),  # 1
    Part.LineSegment(Vector(74.42, 68.07, 0), Vector(74.42, 71.88, 0)),  # 2
    Part.LineSegment(Vector(74.42, 71.88, 0), Vector(75.44, 72.9, 0)),  # 3
    Part.LineSegment(Vector(75.44, 72.9, 0), Vector(75.44, 78.74, 0)),  # 4
    Part.LineSegment(Vector(75.44, 78.74, 0), Vector(74.93, 79.25, 0)),  # 5
    Part.LineSegment(Vector(74.93, 79.25, 0), Vector(72.9, 79.25, 0)),  # 6
    Part.LineSegment(Vector(72.9, 79.25, 0), Vector(72.64, 78.99, 0)),  # 7
    Part.LineSegment(Vector(72.64, 78.99, 0), Vector(72.64, 73.79, 0)),  # 8
    Part.LineSegment(Vector(72.64, 73.79, 0), Vector(72.53, 73.67, 0)),  # 9
    Part.LineSegment(Vector(72.53, 73.67, 0), Vector(69.99, 73.67, 0)),  # 10
    Part.LineSegment(Vector(69.99, 73.67, 0), Vector(69.85, 73.54, 0)),  # 11
], False)
sketch8.addConstraint([
    Sketcher.Constraint("Coincident", 0, 2, 1, 1),
    Sketcher.Constraint("Coincident", 1, 2, 2, 1),
    Sketcher.Constraint("Coincident", 2, 2, 3, 1),
    Sketcher.Constraint("Coincident", 3, 2, 4, 1),
    Sketcher.Constraint("Coincident", 4, 2, 5, 1),
    Sketcher.Constraint("Coincident", 5, 2, 6, 1),
    Sketcher.Constraint("Coincident", 6, 2, 7, 1),
    Sketcher.Constraint("Coincident", 7, 2, 8, 1),
    Sketcher.Constraint("Coincident", 8, 2, 9, 1),
    Sketcher.Constraint("Coincident", 9, 2, 10, 1),
    Sketcher.Constraint("Coincident", 10, 2, 11, 1),
    Sketcher.Constraint("Coincident", 11, 2, 0, 1),
    Sketcher.Constraint("Vertical", 0),
    Sketcher.Constraint("Horizontal", 1),
    Sketcher.Constraint("Vertical", 2),
    Sketcher.Constraint("Vertical", 4),
    Sketcher.Constraint("Horizontal", 6),
    Sketcher.Constraint("Vertical", 8),
    Sketcher.Constraint("Horizontal", 10),
    Sketcher.Constraint("Perpendicular", 3, 5),
    Sketcher.Constraint("Perpendicular", 5, 7),
    Sketcher.Constraint("Parallel", 7, 9),
    Sketcher.Constraint("Parallel", 9, 11),
    Sketcher.Constraint("Angle", 3, Q("45 deg")),
    Sketcher.Constraint("DistanceX", 1, 1, 1, 2, Q("0.18 in")),
    Sketcher.Constraint("DistanceX", 6, 2, 6, 1, Q("0.08 in")),
    Sketcher.Constraint("DistanceY", 2, 1, 2, 2, Q("0.15 in")),
    Sketcher.Constraint("DistanceY", 4, 1, 4, 2, Q("0.23 in")),
    Sketcher.Constraint("DistanceY", -1, 1, 4, 2, Q("3.1 in")),
    Sketcher.Constraint("DistanceX", 0, 2, 5, 2, Q("0.2 in")),
    Sketcher.Constraint("DistanceX", 6, 2, 4, 2, Q("0.1 in")),
    Sketcher.Constraint("DistanceY", 8, 2, 8, 1, Q("0.205 in")),
    Sketcher.Constraint("DistanceX", -1, 1, 0, 2, Q("2.75 in")),
    Sketcher.Constraint("DistanceX", -1, 1, 7, 2, Q("2.86 in")),
    Sketcher.Constraint("DistanceX", -1, 1, 9, 2, 72.5308),
    Sketcher.Constraint("Distance", 11, 0.193541),
])
pocket7 = doc.addObject("PartDesign::Pocket", "Pocket006")
body.addObject(pocket7)
pocket7.Profile = sketch8
pocket7.Length = 1.7
pocket7.Reversed = True

# Sketch on XY plane
sketch9 = doc.addObject("Sketcher::SketchObject", "Sketch008")
body.addObject(sketch9)
sketch9.AttachmentSupport = (doc.XY_Plane, [""])
sketch9.MapMode = "FlatFace"
sketch9.addGeometry([
    Part.LineSegment(Vector(70.6, 77.8, 0), Vector(70.6, 73.3, 0)),
    Part.LineSegment(Vector(70.6, 73.3, 0), Vector(76, 73.3, 0)),
    Part.LineSegment(Vector(76, 73.3, 0), Vector(76, 77.8, 0)),
    Part.LineSegment(Vector(76, 77.8, 0), Vector(70.6, 77.8, 0)),
], False)
sketch9.addConstraint([
    Sketcher.Constraint("Coincident", 0, 2, 1, 1),
    Sketcher.Constraint("Coincident", 1, 2, 2, 1),
    Sketcher.Constraint("Coincident", 2, 2, 3, 1),
    Sketcher.Constraint("Coincident", 3, 2, 0, 1),
    Sketcher.Constraint("Vertical", 0),
    Sketcher.Constraint("Horizontal", 1),
    Sketcher.Constraint("Vertical", 2),
    Sketcher.Constraint("Horizontal", 3),
    Sketcher.Constraint("DistanceX", 1, 1, 1, 2, 5.344198),
    Sketcher.Constraint("DistanceY", 0, 2, 0, 1, 4.530795),
    Sketcher.Constraint("DistanceX", -1, 1, 0, 2, 70.606108),
    Sketcher.Constraint("DistanceY", -1, 1, 0, 2, 73.288422),
])
pocket8 = doc.addObject("PartDesign::Pocket", "Pocket007")
body.addObject(pocket8)
pocket8.Profile = sketch9
pocket8.Length = 10
pocket8.Reversed = True
doc.recompute()

chamfer2 = doc.addObject("PartDesign::Chamfer", "Chamfer001")
body.addObject(chamfer2)
chamfer2.Base = (pocket8, edges_at(pocket8, [(122.809, 80.772, 10), (121.984, 95.059, 10)]))
chamfer2.Size = 2

# Sketch on XY plane
sketch10 = doc.addObject("Sketcher::SketchObject", "Sketch009")
body.addObject(sketch10)
sketch10.AttachmentSupport = (doc.XY_Plane, [""])
sketch10.MapMode = "FlatFace"
sketch10.addGeometry([
    Part.LineSegment(Vector(83, 104, 0), Vector(83, 98, 0)),
    Part.LineSegment(Vector(83, 98, 0), Vector(89, 98, 0)),
    Part.LineSegment(Vector(89, 98, 0), Vector(89, 104, 0)),
    Part.LineSegment(Vector(89, 104, 0), Vector(83, 104, 0)),
], False)
sketch10.addConstraint([
    Sketcher.Constraint("Coincident", 0, 2, 1, 1),
    Sketcher.Constraint("Coincident", 1, 2, 2, 1),
    Sketcher.Constraint("Coincident", 2, 2, 3, 1),
    Sketcher.Constraint("Coincident", 3, 2, 0, 1),
    Sketcher.Constraint("Vertical", 0),
    Sketcher.Constraint("Horizontal", 1),
    Sketcher.Constraint("Vertical", 2),
    Sketcher.Constraint("Horizontal", 3),
    Sketcher.Constraint("DistanceY", -1, 1, 2, 2, Q("4.09 in")),
    Sketcher.Constraint("DistanceX", -1, 1, 1, 2, Q("3.515 in")),
    Sketcher.Constraint("DistanceY", 0, 2, 0, 1, 6.019169),
    Sketcher.Constraint("DistanceX", 1, 1, 1, 2, 6.099936),
])
pocket9 = doc.addObject("PartDesign::Pocket", "Pocket008")
body.addObject(pocket9)
pocket9.Profile = sketch10
pocket9.Length = 10
pocket9.Reversed = True
doc.recompute()

chamfer3 = doc.addObject("PartDesign::Chamfer", "Chamfer002")
body.addObject(chamfer3)
chamfer3.Base = (pocket9, edges_at(pocket9, [(74.422, 66.616, 10)]))
chamfer3.Size = 1.1
doc.recompute()

chamfer4 = doc.addObject("PartDesign::Chamfer", "Chamfer003")
body.addObject(chamfer4)
chamfer4.Base = (chamfer3, edges_at(chamfer3, [(105.029, 97.028, 10)]))
chamfer4.Size = 2

doc.recompute()
